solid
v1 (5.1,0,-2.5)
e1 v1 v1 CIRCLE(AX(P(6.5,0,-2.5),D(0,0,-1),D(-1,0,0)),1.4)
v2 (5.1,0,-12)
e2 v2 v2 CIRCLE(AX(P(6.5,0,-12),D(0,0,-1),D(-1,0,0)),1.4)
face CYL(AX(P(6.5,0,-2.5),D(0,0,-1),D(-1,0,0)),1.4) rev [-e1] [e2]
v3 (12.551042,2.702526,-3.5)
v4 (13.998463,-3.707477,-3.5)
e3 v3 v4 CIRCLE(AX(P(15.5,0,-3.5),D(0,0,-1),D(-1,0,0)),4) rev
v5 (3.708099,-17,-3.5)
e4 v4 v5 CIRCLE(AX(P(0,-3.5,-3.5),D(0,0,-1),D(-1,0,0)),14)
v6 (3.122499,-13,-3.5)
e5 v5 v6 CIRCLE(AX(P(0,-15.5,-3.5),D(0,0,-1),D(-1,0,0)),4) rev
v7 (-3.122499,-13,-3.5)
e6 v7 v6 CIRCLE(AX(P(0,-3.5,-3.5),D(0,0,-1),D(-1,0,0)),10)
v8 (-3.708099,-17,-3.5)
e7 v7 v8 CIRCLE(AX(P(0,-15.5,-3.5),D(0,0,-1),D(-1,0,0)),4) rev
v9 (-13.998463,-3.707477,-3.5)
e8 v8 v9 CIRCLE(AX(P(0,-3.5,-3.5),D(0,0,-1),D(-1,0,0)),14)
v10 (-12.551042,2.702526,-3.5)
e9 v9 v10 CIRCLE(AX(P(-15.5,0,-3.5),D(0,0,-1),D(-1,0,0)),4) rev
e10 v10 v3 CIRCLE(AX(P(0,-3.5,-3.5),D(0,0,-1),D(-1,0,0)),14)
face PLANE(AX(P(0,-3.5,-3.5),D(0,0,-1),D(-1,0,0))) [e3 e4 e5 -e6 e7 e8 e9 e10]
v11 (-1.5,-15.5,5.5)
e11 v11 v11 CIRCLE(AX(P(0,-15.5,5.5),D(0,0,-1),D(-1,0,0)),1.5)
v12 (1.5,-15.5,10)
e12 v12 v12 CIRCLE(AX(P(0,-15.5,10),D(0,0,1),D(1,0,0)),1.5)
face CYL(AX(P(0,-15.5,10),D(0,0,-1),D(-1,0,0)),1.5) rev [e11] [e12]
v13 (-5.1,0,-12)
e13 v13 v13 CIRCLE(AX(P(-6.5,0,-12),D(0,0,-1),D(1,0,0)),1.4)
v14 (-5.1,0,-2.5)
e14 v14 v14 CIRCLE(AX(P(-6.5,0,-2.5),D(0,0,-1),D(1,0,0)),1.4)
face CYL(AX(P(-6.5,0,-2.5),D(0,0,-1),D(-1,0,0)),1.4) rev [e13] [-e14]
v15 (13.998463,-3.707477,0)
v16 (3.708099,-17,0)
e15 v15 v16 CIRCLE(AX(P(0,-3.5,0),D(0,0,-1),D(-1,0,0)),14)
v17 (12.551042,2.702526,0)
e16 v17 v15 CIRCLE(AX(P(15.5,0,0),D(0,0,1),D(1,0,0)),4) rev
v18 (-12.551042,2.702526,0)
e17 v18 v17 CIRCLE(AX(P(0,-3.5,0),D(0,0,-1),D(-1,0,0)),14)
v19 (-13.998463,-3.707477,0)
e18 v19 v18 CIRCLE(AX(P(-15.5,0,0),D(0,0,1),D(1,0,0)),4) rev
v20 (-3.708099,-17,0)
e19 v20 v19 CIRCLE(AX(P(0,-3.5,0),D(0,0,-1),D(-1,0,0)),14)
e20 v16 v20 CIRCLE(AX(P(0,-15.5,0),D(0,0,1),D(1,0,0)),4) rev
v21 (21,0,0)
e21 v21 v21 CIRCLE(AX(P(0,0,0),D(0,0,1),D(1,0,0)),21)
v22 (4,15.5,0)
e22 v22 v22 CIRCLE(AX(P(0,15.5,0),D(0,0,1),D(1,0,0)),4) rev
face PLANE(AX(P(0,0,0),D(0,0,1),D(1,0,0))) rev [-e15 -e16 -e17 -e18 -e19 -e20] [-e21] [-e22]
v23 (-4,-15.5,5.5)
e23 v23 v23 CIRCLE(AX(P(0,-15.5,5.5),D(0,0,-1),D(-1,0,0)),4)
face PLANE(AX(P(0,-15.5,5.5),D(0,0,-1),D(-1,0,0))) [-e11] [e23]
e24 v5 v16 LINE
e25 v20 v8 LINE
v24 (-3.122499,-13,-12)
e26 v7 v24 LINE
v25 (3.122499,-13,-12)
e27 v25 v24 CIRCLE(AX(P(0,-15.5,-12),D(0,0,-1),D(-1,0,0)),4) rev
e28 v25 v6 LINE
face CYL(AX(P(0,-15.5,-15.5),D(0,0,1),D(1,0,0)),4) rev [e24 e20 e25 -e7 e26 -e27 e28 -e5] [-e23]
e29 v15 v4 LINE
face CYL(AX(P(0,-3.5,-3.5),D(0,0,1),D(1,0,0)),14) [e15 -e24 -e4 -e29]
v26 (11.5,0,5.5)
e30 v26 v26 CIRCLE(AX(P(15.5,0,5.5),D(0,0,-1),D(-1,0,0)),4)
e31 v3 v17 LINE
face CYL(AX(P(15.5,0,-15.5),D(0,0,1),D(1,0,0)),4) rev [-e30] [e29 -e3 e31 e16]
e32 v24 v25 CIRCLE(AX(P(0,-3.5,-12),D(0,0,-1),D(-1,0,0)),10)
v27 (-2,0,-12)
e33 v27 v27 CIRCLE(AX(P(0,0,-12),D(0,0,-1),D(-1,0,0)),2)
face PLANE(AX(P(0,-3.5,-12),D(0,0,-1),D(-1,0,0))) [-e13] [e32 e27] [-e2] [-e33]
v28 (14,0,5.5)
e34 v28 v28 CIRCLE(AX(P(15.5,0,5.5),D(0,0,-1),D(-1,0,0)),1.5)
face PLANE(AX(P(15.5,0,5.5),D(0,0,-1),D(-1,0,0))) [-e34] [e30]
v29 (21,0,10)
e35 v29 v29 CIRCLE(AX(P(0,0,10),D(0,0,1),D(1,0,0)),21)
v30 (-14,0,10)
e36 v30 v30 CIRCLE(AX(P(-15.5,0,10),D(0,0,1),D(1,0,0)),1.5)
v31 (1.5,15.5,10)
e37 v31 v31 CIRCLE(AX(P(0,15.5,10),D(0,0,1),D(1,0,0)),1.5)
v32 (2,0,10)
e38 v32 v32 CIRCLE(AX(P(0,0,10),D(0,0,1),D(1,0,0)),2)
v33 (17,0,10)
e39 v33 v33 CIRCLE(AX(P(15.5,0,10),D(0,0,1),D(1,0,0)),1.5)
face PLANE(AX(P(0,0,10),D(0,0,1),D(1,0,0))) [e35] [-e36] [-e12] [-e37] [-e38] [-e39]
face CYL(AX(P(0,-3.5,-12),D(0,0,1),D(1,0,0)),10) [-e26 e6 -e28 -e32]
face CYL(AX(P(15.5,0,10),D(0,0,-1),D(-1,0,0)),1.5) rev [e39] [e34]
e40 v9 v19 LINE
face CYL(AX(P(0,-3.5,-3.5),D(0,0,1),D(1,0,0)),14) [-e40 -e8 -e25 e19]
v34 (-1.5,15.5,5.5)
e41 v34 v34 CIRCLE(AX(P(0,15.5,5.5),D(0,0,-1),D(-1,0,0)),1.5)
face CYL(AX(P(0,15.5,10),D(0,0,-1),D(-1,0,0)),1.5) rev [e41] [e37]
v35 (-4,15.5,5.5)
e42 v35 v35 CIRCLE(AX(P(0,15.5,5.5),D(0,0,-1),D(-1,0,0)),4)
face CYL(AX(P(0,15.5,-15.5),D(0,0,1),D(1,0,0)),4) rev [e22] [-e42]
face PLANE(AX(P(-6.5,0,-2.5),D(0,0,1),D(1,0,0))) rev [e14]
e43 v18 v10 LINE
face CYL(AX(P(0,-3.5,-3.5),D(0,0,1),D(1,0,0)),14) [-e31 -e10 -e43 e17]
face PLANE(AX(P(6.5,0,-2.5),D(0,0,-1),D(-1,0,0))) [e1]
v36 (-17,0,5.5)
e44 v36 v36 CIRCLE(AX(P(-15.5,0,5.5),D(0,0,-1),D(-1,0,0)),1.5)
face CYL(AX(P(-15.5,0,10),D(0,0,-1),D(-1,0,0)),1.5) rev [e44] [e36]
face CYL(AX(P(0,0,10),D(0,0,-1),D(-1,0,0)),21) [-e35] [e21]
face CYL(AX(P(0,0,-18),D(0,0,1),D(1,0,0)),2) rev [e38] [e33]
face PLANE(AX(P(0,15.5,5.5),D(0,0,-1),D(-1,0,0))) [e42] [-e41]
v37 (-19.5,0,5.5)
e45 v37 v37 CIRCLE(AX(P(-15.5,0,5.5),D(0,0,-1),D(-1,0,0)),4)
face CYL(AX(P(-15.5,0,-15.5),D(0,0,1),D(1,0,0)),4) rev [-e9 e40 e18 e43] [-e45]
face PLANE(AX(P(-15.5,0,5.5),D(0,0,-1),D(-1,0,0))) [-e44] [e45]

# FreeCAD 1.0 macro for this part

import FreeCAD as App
import Part
import Sketcher
from FreeCAD import Vector
Q = App.Units.Quantity

doc = App.newDocument("Part")
body = doc.addObject("PartDesign::Body", "Body")

# Sketch on XY plane
sketch1 = body.newObject("Sketcher::SketchObject", "Sketch")
sketch1.AttachmentSupport = (doc.getObject("XY_Plane"), [""])
sketch1.MapMode = "FlatFace"
sketch1.addGeometry(Part.Circle(Vector(0, 0, 0), Vector(0, 0, 1), 21), False)
sketch1.addGeometry(Part.Circle(Vector(0, -15.5, 0), Vector(0, 0, 1), 1.5), False)
sketch1.addGeometry(Part.Circle(Vector(-15.5, 0, 0), Vector(0, 0, 1), 1.5), False)
sketch1.addGeometry(Part.Circle(Vector(15.5, 0, 0), Vector(0, 0, 1), 1.5), False)
sketch1.addGeometry(Part.Circle(Vector(0, 15.5, 0), Vector(0, 0, 1), 1.5), False)
sketch1.addConstraint(Sketcher.Constraint("Coincident", 0, 3, -1, 1))
sketch1.addConstraint(Sketcher.Constraint("Equal", 1, 2))
sketch1.addConstraint(Sketcher.Constraint("Equal", 2, 3))
sketch1.addConstraint(Sketcher.Constraint("Equal", 3, 4))
sketch1.addConstraint(Sketcher.Constraint("Symmetric", 2, 3, 3, 3, -1, 1))
sketch1.addConstraint(Sketcher.Constraint("Symmetric", 1, 3, 4, 3, -1, 1))
sketch1.addConstraint(Sketcher.Constraint("PointOnObject", 1, 3, -2))
sketch1.addConstraint(Sketcher.Constraint("PointOnObject", 2, 3, -1))
sketch1.addConstraint(Sketcher.Constraint("Diameter", 0, Q("42 mm")))
sketch1.addConstraint(Sketcher.Constraint("Diameter", 1, Q("3 mm")))
sketch1.addConstraint(Sketcher.Constraint("DistanceX", 2, 3, 3, 3, Q("31 mm")))
sketch1.addConstraint(Sketcher.Constraint("DistanceY", 1, 3, 4, 3, Q("31 mm")))
pad1 = body.newObject("PartDesign::Pad", "Pad")
pad1.Profile = sketch1
pad1.Length = 10

# Sketch on XY plane
sketch2 = body.newObject("Sketcher::SketchObject", "Sketch001")
sketch2.AttachmentSupport = (doc.getObject("XY_Plane"), [""])
sketch2.MapMode = "FlatFace"
sketch2.addGeometry(Part.Circle(Vector(0, -4, 0), Vector(0, 0, 1), 14), False)
sketch2.addConstraint(Sketcher.Constraint("PointOnObject", 0, 3, -2))
sketch2.addConstraint(Sketcher.Constraint("Diameter", 0, Q("28 mm")))
sketch2.addConstraint(Sketcher.Constraint("DistanceY", 0, 3, -1, 1, Q("3.5 mm")))
pad2 = body.newObject("PartDesign::Pad", "Pad001")
pad2.Profile = sketch2
pad2.Length = 3.5
pad2.Reversed = True

# Sketch on XY plane
sketch3 = body.newObject("Sketcher::SketchObject", "Sketch002")
sketch3.AttachmentSupport = (doc.getObject("XY_Plane"), [""])
sketch3.MapMode = "FlatFace"
sketch3.AttachmentOffset = App.Placement(Vector(0, 0, -3.5), App.Rotation())
sketch3.addGeometry(Part.Circle(Vector(0, -4, 0), Vector(0, 0, 1), 10), False)
sketch3.addConstraint(Sketcher.Constraint("PointOnObject", 0, 3, -2))
sketch3.addConstraint(Sketcher.Constraint("Diameter", 0, Q("20 mm")))
sketch3.addConstraint(Sketcher.Constraint("DistanceY", 0, 3, -1, 1, Q("3.5 mm")))
pad3 = body.newObject("PartDesign::Pad", "Pad002")
pad3.Profile = sketch3
pad3.Length = 8.5
pad3.Reversed = True

# Sketch on XY plane
sketch4 = body.newObject("Sketcher::SketchObject", "Sketch003")
sketch4.AttachmentSupport = (doc.getObject("XY_Plane"), [""])
sketch4.MapMode = "FlatFace"
sketch4.AttachmentOffset = App.Placement(Vector(0, 0, 10), App.Rotation())
sketch4.addGeometry(Part.Circle(Vector(0, 0, 0), Vector(0, 0, 1), 2), False)
sketch4.addConstraint(Sketcher.Constraint("Coincident", 0, 3, -1, 1))
sketch4.addConstraint(Sketcher.Constraint("Diameter", 0, Q("4 mm")))
pocket1 = body.newObject("PartDesign::Pocket", "Pocket")
pocket1.Profile = sketch4
pocket1.Length = 28

# Sketch on XY plane
sketch5 = body.newObject("Sketcher::SketchObject", "Sketch004")
sketch5.AttachmentSupport = (doc.getObject("XY_Plane"), [""])
sketch5.MapMode = "FlatFace"
sketch5.AttachmentOffset = App.Placement(Vector(0, 0, -12), App.Rotation())
sketch5.addGeometry(Part.Circle(Vector(6.5, 0, 0), Vector(0, 0, 1), 1.4), False)
sketch5.addGeometry(Part.Circle(Vector(-6.5, 0, 0), Vector(0, 0, 1), 1.4), False)
sketch5.addConstraint(Sketcher.Constraint("Equal", 0, 1))
sketch5.addConstraint(Sketcher.Constraint("Symmetric", 0, 3, 1, 3, -1, 1))
sketch5.addConstraint(Sketcher.Constraint("PointOnObject", 0, 3, -1))
sketch5.addConstraint(Sketcher.Constraint("Diameter", 0, Q("2.8 mm")))
sketch5.addConstraint(Sketcher.Constraint("DistanceX", 1, 3, 0, 3, Q("13 mm")))
pocket2 = body.newObject("PartDesign::Pocket", "Pocket001")
pocket2.Profile = sketch5
pocket2.Length = 9.5
pocket2.Reversed = True

# Sketch on XY plane
sketch6 = body.newObject("Sketcher::SketchObject", "Sketch005")
sketch6.AttachmentSupport = (doc.getObject("XY_Plane"), [""])
sketch6.MapMode = "FlatFace"
sketch6.addGeometry(Part.Circle(Vector(0, 15.5, 0), Vector(0, 0, 1), 4), False)
sketch6.addGeometry(Part.Circle(Vector(-15.5, 0, 0), Vector(0, 0, 1), 4), False)
sketch6.addGeometry(Part.Circle(Vector(0, -15.5, 0), Vector(0, 0, 1), 4), False)
sketch6.addGeometry(Part.Circle(Vector(15.5, 0, 0), Vector(0, 0, 1), 4), False)
sketch6.addConstraint(Sketcher.Constraint("Equal", 0, 1))
sketch6.addConstraint(Sketcher.Constraint("Equal", 1, 2))
sketch6.addConstraint(Sketcher.Constraint("Equal", 2, 3))
sketch6.addConstraint(Sketcher.Constraint("Symmetric", 0, 3, 2, 3, -1, 1))
sketch6.addConstraint(Sketcher.Constraint("Symmetric", 1, 3, 3, 3, -1, 1))
sketch6.addConstraint(Sketcher.Constraint("PointOnObject", 0, 3, -2))
sketch6.addConstraint(Sketcher.Constraint("PointOnObject", 1, 3, -1))
sketch6.addConstraint(Sketcher.Constraint("Diameter", 0, Q("8 mm")))
sketch6.addConstraint(Sketcher.Constraint("DistanceY", 2, 3, 0, 3, Q("31 mm")))
sketch6.addConstraint(Sketcher.Constraint("DistanceX", 1, 3, 3, 3, Q("31 mm")))
pocket3 = body.newObject("PartDesign::Pocket", "Pocket002")
pocket3.Profile = sketch6
pocket3.Type = "TwoLengths"
pocket3.Length = 15.5
pocket3.Length2 = 5.5

doc.recompute()
